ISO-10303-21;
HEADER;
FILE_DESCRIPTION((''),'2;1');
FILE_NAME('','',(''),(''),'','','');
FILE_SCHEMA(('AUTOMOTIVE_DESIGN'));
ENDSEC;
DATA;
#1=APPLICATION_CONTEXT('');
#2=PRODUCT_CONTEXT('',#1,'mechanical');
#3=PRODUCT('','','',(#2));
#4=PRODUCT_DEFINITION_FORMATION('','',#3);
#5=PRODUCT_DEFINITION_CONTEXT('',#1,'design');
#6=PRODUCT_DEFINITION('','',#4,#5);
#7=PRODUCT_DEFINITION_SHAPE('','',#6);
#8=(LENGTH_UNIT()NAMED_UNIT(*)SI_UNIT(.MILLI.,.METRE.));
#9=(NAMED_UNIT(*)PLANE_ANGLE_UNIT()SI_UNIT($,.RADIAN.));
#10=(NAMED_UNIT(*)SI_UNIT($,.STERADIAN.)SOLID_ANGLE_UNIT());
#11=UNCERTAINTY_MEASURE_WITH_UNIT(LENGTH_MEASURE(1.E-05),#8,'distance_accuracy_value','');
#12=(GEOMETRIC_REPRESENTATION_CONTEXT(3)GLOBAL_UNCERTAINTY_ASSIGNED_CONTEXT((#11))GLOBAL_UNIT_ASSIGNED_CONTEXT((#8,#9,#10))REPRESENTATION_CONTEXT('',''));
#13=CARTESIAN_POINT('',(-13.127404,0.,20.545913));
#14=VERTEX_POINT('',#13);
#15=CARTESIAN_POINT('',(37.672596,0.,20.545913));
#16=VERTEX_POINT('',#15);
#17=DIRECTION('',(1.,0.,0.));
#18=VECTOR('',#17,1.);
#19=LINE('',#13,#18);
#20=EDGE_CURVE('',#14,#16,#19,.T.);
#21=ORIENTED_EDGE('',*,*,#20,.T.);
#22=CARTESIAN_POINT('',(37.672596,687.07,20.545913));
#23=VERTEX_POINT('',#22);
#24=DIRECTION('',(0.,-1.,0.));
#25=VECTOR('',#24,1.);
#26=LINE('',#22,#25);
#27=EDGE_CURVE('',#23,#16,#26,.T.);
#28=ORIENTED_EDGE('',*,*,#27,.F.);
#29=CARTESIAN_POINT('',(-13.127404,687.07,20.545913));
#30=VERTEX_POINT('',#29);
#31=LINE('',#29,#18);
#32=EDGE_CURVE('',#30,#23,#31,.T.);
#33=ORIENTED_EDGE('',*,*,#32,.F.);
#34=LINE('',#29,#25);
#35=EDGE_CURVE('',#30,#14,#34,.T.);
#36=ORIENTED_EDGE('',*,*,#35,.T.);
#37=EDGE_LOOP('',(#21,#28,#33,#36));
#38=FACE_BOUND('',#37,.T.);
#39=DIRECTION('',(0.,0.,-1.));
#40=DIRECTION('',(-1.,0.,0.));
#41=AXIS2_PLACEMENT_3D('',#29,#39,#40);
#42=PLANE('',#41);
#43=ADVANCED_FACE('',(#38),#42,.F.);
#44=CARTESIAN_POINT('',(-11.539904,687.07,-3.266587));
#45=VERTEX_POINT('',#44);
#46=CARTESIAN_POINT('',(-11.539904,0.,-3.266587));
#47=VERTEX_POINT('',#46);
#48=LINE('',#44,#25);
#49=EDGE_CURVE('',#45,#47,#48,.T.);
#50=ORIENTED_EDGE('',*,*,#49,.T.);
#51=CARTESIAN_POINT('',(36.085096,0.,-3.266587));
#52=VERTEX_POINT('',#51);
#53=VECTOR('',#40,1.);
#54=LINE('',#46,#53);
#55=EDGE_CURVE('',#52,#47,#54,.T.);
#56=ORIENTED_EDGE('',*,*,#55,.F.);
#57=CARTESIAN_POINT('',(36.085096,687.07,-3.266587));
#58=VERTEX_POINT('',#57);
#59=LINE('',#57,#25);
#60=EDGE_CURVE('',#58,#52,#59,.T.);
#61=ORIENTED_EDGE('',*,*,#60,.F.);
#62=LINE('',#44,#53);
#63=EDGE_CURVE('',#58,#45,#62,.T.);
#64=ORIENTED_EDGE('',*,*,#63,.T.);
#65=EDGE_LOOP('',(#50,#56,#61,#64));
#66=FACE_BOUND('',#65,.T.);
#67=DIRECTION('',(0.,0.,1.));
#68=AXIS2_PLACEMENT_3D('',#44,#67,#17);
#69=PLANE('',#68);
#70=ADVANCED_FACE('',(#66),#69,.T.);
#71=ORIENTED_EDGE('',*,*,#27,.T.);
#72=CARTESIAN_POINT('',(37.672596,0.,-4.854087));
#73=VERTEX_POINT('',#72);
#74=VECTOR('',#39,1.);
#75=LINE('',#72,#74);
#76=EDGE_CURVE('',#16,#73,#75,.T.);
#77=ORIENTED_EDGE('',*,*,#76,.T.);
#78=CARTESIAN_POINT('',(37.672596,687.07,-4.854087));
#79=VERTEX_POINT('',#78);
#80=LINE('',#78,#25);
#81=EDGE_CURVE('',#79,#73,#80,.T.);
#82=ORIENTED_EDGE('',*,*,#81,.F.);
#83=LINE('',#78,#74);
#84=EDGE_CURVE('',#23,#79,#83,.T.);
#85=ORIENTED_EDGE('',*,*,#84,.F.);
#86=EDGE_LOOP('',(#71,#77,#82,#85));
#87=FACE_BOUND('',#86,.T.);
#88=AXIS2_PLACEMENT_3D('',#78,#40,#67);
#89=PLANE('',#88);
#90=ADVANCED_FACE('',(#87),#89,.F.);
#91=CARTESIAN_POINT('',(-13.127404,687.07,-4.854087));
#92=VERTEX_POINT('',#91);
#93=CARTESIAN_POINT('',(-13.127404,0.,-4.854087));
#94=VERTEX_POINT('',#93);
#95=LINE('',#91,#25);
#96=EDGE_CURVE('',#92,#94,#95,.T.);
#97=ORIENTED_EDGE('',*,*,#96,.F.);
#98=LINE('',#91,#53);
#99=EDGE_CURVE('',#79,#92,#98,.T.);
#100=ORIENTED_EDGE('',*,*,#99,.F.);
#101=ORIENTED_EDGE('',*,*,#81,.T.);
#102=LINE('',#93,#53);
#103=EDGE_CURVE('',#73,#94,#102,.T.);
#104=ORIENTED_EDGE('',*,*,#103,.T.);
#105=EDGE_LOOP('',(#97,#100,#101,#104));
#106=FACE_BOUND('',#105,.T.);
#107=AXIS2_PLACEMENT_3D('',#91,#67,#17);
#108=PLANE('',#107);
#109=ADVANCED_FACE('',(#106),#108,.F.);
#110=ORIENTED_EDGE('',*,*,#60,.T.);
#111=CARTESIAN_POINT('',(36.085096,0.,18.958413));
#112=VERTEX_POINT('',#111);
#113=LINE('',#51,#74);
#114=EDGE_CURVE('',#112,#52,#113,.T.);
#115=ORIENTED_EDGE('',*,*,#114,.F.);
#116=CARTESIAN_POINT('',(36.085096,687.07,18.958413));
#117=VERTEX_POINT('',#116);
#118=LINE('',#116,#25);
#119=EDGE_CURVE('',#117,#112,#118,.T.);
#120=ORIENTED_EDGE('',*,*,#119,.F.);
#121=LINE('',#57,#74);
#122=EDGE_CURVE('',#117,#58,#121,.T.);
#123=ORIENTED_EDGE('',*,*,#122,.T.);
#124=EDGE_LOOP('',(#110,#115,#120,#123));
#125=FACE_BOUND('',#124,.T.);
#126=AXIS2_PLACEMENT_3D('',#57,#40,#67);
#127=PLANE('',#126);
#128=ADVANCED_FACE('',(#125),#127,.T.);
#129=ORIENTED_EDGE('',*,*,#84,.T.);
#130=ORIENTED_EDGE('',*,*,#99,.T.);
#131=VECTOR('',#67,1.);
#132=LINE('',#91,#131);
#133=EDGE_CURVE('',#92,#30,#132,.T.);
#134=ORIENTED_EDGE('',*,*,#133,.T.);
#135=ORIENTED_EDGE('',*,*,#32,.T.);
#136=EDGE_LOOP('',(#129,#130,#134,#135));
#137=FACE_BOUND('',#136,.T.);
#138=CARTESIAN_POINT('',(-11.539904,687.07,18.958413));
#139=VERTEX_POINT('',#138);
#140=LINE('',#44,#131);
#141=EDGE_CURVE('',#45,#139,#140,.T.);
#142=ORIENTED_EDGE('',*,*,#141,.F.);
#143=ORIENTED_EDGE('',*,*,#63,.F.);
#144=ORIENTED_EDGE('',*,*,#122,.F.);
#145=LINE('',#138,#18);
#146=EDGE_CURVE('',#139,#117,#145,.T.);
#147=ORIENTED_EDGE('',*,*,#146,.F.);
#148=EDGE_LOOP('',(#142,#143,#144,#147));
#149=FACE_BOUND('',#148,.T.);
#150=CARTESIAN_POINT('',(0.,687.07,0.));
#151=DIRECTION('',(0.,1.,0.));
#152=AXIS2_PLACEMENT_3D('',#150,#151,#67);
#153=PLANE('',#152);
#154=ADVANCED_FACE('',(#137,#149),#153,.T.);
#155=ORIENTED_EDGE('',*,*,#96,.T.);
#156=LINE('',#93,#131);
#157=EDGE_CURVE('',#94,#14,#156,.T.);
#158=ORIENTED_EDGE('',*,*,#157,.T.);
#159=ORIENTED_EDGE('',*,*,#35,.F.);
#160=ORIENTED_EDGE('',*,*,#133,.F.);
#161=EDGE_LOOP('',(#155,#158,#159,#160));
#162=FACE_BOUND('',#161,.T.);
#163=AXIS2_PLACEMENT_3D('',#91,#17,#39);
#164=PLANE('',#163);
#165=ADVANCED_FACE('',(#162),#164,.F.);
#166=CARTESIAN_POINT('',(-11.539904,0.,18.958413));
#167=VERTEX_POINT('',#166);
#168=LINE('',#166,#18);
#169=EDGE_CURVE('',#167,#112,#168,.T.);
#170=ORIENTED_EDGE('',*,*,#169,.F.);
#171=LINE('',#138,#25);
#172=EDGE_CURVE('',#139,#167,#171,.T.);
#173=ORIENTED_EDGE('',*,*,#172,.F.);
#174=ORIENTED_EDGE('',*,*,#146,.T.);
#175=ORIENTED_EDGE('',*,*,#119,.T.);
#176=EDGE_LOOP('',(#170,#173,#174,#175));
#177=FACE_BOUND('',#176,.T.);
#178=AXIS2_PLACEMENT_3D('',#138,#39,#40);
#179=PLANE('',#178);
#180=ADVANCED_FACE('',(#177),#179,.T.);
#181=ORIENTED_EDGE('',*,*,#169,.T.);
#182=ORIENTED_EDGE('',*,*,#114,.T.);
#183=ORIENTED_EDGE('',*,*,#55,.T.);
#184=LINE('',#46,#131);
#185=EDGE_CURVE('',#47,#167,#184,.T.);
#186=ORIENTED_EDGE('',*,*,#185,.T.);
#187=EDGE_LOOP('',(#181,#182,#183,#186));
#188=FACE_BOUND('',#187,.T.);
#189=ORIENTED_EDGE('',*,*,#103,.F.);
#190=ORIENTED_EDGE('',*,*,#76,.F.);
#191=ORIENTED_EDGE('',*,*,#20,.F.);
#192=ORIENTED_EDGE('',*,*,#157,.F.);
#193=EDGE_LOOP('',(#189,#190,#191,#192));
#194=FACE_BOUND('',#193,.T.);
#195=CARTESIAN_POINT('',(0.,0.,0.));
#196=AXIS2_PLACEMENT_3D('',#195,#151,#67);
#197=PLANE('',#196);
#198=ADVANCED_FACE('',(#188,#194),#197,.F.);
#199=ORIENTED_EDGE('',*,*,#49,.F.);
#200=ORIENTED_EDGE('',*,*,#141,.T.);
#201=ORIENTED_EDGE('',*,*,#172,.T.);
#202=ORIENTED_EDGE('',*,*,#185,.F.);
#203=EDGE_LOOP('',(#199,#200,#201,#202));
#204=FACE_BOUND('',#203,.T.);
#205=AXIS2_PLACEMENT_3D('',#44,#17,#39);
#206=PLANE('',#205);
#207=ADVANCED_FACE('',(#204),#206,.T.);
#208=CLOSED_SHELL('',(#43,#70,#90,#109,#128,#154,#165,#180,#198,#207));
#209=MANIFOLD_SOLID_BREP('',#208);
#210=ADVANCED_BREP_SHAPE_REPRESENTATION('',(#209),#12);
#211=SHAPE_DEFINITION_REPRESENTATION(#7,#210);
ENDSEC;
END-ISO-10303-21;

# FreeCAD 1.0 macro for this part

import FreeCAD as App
import Part
import Sketcher
Q = App.Units.Quantity

doc = App.newDocument("Part")
body = doc.addObject("PartDesign::Body", "Body")

sketch1 = body.newObject("Sketcher::SketchObject", "Sketch")
sketch1.AttachmentSupport = (doc.getObject("XZ_Plane"), [""])
sketch1.MapMode = "FlatFace"
sketch1.addGeometry([
    Part.LineSegment(App.Vector(-13, -5, 0), App.Vector(-13, 21, 0)),
    Part.LineSegment(App.Vector(-13, 21, 0), App.Vector(38, 21, 0)),
    Part.LineSegment(App.Vector(38, 21, 0), App.Vector(38, -5, 0)),
    Part.LineSegment(App.Vector(38, -5, 0), App.Vector(-13, -5, 0)),
    Part.LineSegment(App.Vector(36, 19, 0), App.Vector(-12, 19, 0)),
    Part.LineSegment(App.Vector(-12, 19, 0), App.Vector(-12, -3, 0)),
    Part.LineSegment(App.Vector(-12, -3, 0), App.Vector(36, -3, 0)),
    Part.LineSegment(App.Vector(36, -3, 0), App.Vector(36, 19, 0)),
], False)
sketch1.addConstraint([
    Sketcher.Constraint("Coincident", 0, 2, 1, 1),
    Sketcher.Constraint("Coincident", 1, 2, 2, 1),
    Sketcher.Constraint("Coincident", 2, 2, 3, 1),
    Sketcher.Constraint("Coincident", 3, 2, 0, 1),
    Sketcher.Constraint("Coincident", 4, 2, 5, 1),
    Sketcher.Constraint("Coincident", 5, 2, 6, 1),
    Sketcher.Constraint("Coincident", 6, 2, 7, 1),
    Sketcher.Constraint("Coincident", 7, 2, 4, 1),
    Sketcher.Constraint("Vertical", 0),
    Sketcher.Constraint("Horizontal", 1),
    Sketcher.Constraint("Vertical", 2),
    Sketcher.Constraint("Horizontal", 3),
    Sketcher.Constraint("Horizontal", 4),
    Sketcher.Constraint("Vertical", 5),
    Sketcher.Constraint("Horizontal", 6),
    Sketcher.Constraint("Vertical", 7),
    Sketcher.Constraint("DistanceX", 1, 1, 1, 2, Q("2 in")),
    Sketcher.Constraint("DistanceY", 0, 1, 0, 2, Q("1 in")),
    Sketcher.Constraint("DistanceX", 4, 2, 4, 1, Q("1.875 in")),
    Sketcher.Constraint("DistanceY", 5, 2, 5, 1, Q("0.875 in")),
    Sketcher.Constraint("DistanceX", 0, 2, 4, 2, Q("0.0625 in")),
    Sketcher.Constraint("DistanceY", 4, 2, 0, 2, Q("0.0625 in")),
    Sketcher.Constraint("DistanceX", 0, 2, -1, 1, Q("13.127404 mm")),
    Sketcher.Constraint("DistanceY", -1, 1, 0, 2, Q("20.545913 mm")),
])
pad1 = body.newObject("PartDesign::Pad", "Pad")
pad1.Profile = sketch1
pad1.Length = Q("27.05 in")
pad1.Reversed = True

doc.recompute()
